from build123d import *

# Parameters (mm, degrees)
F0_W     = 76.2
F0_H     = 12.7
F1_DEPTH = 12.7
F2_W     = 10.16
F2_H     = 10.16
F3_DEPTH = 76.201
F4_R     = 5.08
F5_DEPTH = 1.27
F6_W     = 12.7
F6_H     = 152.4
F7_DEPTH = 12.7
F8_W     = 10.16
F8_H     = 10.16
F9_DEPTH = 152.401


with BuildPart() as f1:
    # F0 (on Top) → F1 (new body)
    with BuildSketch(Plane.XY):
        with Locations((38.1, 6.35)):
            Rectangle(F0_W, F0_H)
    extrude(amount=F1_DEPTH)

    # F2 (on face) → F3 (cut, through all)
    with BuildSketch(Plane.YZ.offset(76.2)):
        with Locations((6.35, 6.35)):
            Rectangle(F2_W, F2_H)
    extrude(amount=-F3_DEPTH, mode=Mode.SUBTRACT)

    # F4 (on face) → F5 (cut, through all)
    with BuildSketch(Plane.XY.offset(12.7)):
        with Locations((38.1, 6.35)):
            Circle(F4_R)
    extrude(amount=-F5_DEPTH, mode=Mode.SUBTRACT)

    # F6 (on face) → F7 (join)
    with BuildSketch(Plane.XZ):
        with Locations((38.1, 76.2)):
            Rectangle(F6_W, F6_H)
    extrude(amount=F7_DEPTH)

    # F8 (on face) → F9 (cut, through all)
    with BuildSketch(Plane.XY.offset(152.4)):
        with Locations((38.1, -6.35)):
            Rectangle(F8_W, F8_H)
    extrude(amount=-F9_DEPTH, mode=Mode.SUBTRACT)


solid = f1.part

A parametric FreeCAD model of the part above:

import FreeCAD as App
import Part
import Sketcher

V = App.Vector
Q = App.Units.Quantity


def add_polygon(sketch, points):
    """Adds a closed chain of lines whose ends are joined by coincident constraints."""
    first, n = sketch.GeometryCount, len(points)
    for a, b in zip(points, points[1:] + points[:1]):
        sketch.addGeometry(Part.LineSegment(App.Vector(*a, 0), App.Vector(*b, 0)), False)
    for i in range(n):
        sketch.addConstraint(Sketcher.Constraint("Coincident", first + i, 2, first + (i + 1) % n, 1))

doc = App.newDocument("Part")
body = doc.addObject("PartDesign::Body", "Body")

sketch1 = body.newObject("Sketcher::SketchObject", "Sketch")
sketch1.AttachmentSupport = (doc.getObject("XY_Plane"), [""])
sketch1.MapMode = "FlatFace"
add_polygon(sketch1, [(0, 13), (0, 0), (76, 0), (76, 13)])
sketch1.addConstraint([
    Sketcher.Constraint("Vertical", 0),
    Sketcher.Constraint("Horizontal", 1),
    Sketcher.Constraint("Vertical", 2),
    Sketcher.Constraint("Horizontal", 3),
    Sketcher.Constraint("Coincident", 0, 2, -1, 1),
    Sketcher.Constraint("DistanceX", 1, 1, 1, 2, Q("3 in")),
    Sketcher.Constraint("DistanceY", 0, 2, 0, 1, Q("0.5 in")),
])
pad1 = body.newObject("PartDesign::Pad", "Pad")
pad1.Profile = sketch1
pad1.Length = Q("0.5 in")

sketch2 = body.newObject("Sketcher::SketchObject", "Sketch001")
sketch2.AttachmentSupport = (doc.getObject("YZ_Plane"), [""])
sketch2.MapMode = "FlatFace"
sketch2.AttachmentOffset = App.Placement(V(0, 0, 3 * 25.4), App.Rotation())
add_polygon(sketch2, [(1, 11), (1, 1), (11, 1), (11, 11)])
sketch2.addConstraint([
    Sketcher.Constraint("Vertical", 0),
    Sketcher.Constraint("Horizontal", 1),
    Sketcher.Constraint("Vertical", 2),
    Sketcher.Constraint("Horizontal", 3),
    Sketcher.Constraint("Equal", 3, 0),
    Sketcher.Constraint("DistanceX", 1, 1, 1, 2, Q("0.4 in")),
    Sketcher.Constraint("DistanceX", -1, 1, 0, 2, Q("0.05 in")),
    Sketcher.Constraint("DistanceY", -1, 1, 0, 2, Q("0.05 in")),
])
pocket1 = body.newObject("PartDesign::Pocket", "Pocket")
pocket1.Profile = sketch2
pocket1.Type = "ThroughAll"

sketch3 = body.newObject("Sketcher::SketchObject", "Sketch002")
sketch3.AttachmentSupport = (doc.getObject("XY_Plane"), [""])
sketch3.MapMode = "FlatFace"
sketch3.AttachmentOffset = App.Placement(V(0, 0, 0.5 * 25.4), App.Rotation())
sketch3.addGeometry(Part.Circle(V(38, 6, 0), V(0, 0, 1), 5), False)
sketch3.addConstraint([
    Sketcher.Constraint("Diameter", 0, Q("0.4 in")),
    Sketcher.Constraint("DistanceX", -1, 1, 0, 3, Q("1.5 in")),
    Sketcher.Constraint("DistanceY", -1, 1, 0, 3, Q("0.25 in")),
])
pocket2 = body.newObject("PartDesign::Pocket", "Pocket001")
pocket2.Profile = sketch3
pocket2.Length = Q("0.05 in")

sketch4 = body.newObject("Sketcher::SketchObject", "Sketch003")
sketch4.AttachmentSupport = (doc.getObject("XZ_Plane"), [""])
sketch4.MapMode = "FlatFace"
add_polygon(sketch4, [(32, 152), (32, 0), (44, 0), (44, 152)])
sketch4.addConstraint([
    Sketcher.Constraint("Vertical", 0),
    Sketcher.Constraint("Horizontal", 1),
    Sketcher.Constraint("Vertical", 2),
    Sketcher.Constraint("Horizontal", 3),
    Sketcher.Constraint("PointOnObject", 0, 2, -1),
    Sketcher.Constraint("DistanceY", 0, 2, 0, 1, Q("6 in")),
    Sketcher.Constraint("DistanceX", 1, 1, 1, 2, Q("0.5 in")),
    Sketcher.Constraint("DistanceX", -1, 1, 0, 2, Q("1.25 in")),
])
pad2 = body.newObject("PartDesign::Pad", "Pad001")
pad2.Profile = sketch4
pad2.Length = Q("0.5 in")

sketch5 = body.newObject("Sketcher::SketchObject", "Sketch004")
sketch5.AttachmentSupport = (doc.getObject("XY_Plane"), [""])
sketch5.MapMode = "FlatFace"
sketch5.AttachmentOffset = App.Placement(V(0, 0, 6 * 25.4), App.Rotation())
add_polygon(sketch5, [(33, -1), (33, -11), (43, -11), (43, -1)])
sketch5.addConstraint([
    Sketcher.Constraint("Vertical", 0),
    Sketcher.Constraint("Horizontal", 1),
    Sketcher.Constraint("Vertical", 2),
    Sketcher.Constraint("Horizontal", 3),
    Sketcher.Constraint("Equal", 3, 0),
    Sketcher.Constraint("DistanceX", 1, 1, 1, 2, Q("0.4 in")),
    Sketcher.Constraint("DistanceX", -1, 1, 0, 2, Q("1.3 in")),
    Sketcher.Constraint("DistanceY", 0, 2, -1, 1, Q("0.45 in")),
])
pocket3 = body.newObject("PartDesign::Pocket", "Pocket002")
pocket3.Profile = sketch5
pocket3.Type = "ThroughAll"

doc.recompute()
